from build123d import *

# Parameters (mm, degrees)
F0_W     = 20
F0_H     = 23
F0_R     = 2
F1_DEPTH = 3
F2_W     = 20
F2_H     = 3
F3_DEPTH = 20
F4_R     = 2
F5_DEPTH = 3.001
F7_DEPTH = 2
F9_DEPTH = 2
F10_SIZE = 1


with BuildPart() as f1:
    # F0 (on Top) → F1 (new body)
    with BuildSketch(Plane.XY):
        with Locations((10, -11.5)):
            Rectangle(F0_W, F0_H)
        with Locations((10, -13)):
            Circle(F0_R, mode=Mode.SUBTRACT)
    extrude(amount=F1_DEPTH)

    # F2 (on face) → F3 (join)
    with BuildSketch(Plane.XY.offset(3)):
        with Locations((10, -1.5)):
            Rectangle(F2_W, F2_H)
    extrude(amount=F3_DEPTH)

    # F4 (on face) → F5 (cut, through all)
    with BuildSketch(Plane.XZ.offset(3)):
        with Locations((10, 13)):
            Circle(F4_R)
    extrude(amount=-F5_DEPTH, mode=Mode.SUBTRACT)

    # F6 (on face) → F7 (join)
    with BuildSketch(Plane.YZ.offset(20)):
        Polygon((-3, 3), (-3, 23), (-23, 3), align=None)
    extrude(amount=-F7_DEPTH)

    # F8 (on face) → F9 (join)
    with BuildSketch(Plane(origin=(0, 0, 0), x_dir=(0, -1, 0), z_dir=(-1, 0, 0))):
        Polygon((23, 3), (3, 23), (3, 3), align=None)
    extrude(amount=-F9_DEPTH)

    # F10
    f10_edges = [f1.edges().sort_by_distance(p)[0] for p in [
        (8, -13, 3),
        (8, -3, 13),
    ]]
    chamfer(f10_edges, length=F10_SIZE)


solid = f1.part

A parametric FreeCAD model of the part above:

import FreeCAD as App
import Part
import Sketcher

V = App.Vector


def edges_at(feature, points):
    """Names of the edges that pass closest to the given points."""
    edges = feature.Shape.Edges
    near = lambda p: min(range(len(edges)), key=lambda i: edges[i].distToShape(Part.Vertex(*p))[0])
    return sorted({f"Edge{near(p) + 1}" for p in points})

doc = App.newDocument("Part")
body = doc.addObject("PartDesign::Body", "Body")

sketch1 = doc.addObject("Sketcher::SketchObject", "Sketch")
body.addObject(sketch1)
sketch1.AttachmentSupport = (doc.XY_Plane, [""])
sketch1.MapMode = "FlatFace"
sketch1.addGeometry([
    Part.LineSegment(V(0, 0, 0), V(0, -23, 0)),
    Part.LineSegment(V(0, -23, 0), V(20, -23, 0)),
    Part.LineSegment(V(20, -23, 0), V(20, 0, 0)),
    Part.LineSegment(V(20, 0, 0), V(0, 0, 0)),
    Part.Circle(V(10, -13, 0), V(0, 0, 1), 2),
], False)
sketch1.addConstraint([
    Sketcher.Constraint("Coincident", 0, 2, 1, 1),
    Sketcher.Constraint("Coincident", 1, 2, 2, 1),
    Sketcher.Constraint("Coincident", 2, 2, 3, 1),
    Sketcher.Constraint("Coincident", 3, 2, 0, 1),
    Sketcher.Constraint("Vertical", 0),
    Sketcher.Constraint("Horizontal", 1),
    Sketcher.Constraint("Vertical", 2),
    Sketcher.Constraint("Horizontal", 3),
    Sketcher.Constraint("Coincident", 3, 2, -1, 1),
    Sketcher.Constraint("Diameter", 4, 4.0),
    Sketcher.Constraint("DistanceX", 1, 1, 1, 2, 20.0),
    Sketcher.Constraint("DistanceY", 0, 2, 0, 1, 23.0),
    Sketcher.Constraint("DistanceX", -1, 1, 4, 3, 10.0),
    Sketcher.Constraint("DistanceY", 4, 3, -1, 1, 13.0),
])
pad1 = doc.addObject("PartDesign::Pad", "Pad")
body.addObject(pad1)
pad1.Profile = sketch1
pad1.Length = 3

sketch2 = doc.addObject("Sketcher::SketchObject", "Sketch001")
body.addObject(sketch2)
sketch2.AttachmentSupport = (doc.XY_Plane, [""])
sketch2.MapMode = "FlatFace"
sketch2.AttachmentOffset = App.Placement(V(0, 0, 3), App.Rotation())
sketch2.addGeometry([
    Part.LineSegment(V(0, 0, 0), V(0, -3, 0)),
    Part.LineSegment(V(0, -3, 0), V(20, -3, 0)),
    Part.LineSegment(V(20, -3, 0), V(20, 0, 0)),
    Part.LineSegment(V(20, 0, 0), V(0, 0, 0)),
], False)
sketch2.addConstraint([
    Sketcher.Constraint("Coincident", 0, 2, 1, 1),
    Sketcher.Constraint("Coincident", 1, 2, 2, 1),
    Sketcher.Constraint("Coincident", 2, 2, 3, 1),
    Sketcher.Constraint("Coincident", 3, 2, 0, 1),
    Sketcher.Constraint("Vertical", 0),
    Sketcher.Constraint("Horizontal", 1),
    Sketcher.Constraint("Vertical", 2),
    Sketcher.Constraint("Horizontal", 3),
    Sketcher.Constraint("Coincident", 3, 2, -1, 1),
    Sketcher.Constraint("DistanceX", 1, 1, 1, 2, 20.0),
    Sketcher.Constraint("DistanceY", 0, 2, 0, 1, 3.0),
])
pad2 = doc.addObject("PartDesign::Pad", "Pad001")
body.addObject(pad2)
pad2.Profile = sketch2
pad2.Length = 20

sketch3 = doc.addObject("Sketcher::SketchObject", "Sketch002")
body.addObject(sketch3)
sketch3.AttachmentSupport = (doc.XZ_Plane, [""])
sketch3.MapMode = "FlatFace"
sketch3.AttachmentOffset = App.Placement(V(0, 0, 3), App.Rotation())
sketch3.addGeometry(Part.Circle(V(10, 13, 0), V(0, 0, 1), 2), False)
sketch3.addConstraint([
    Sketcher.Constraint("Diameter", 0, 4.0),
    Sketcher.Constraint("DistanceX", -1, 1, 0, 3, 10.0),
    Sketcher.Constraint("DistanceY", -1, 1, 0, 3, 13.0),
])
pocket1 = doc.addObject("PartDesign::Pocket", "Pocket")
body.addObject(pocket1)
pocket1.Profile = sketch3
pocket1.Type = "ThroughAll"

sketch4 = doc.addObject("Sketcher::SketchObject", "Sketch003")
body.addObject(sketch4)
sketch4.AttachmentSupport = (doc.YZ_Plane, [""])
sketch4.MapMode = "FlatFace"
sketch4.AttachmentOffset = App.Placement(V(0, 0, 20), App.Rotation())
sketch4.addGeometry([
    Part.LineSegment(V(-3, 3, 0), V(-3, 23, 0)),
    Part.LineSegment(V(-3, 23, 0), V(-23, 3, 0)),
    Part.LineSegment(V(-23, 3, 0), V(-3, 3, 0)),
], False)
sketch4.addConstraint([
    Sketcher.Constraint("Coincident", 0, 2, 1, 1),
    Sketcher.Constraint("Coincident", 1, 2, 2, 1),
    Sketcher.Constraint("Coincident", 2, 2, 0, 1),
    Sketcher.Constraint("Vertical", 0),
    Sketcher.Constraint("Horizontal", 2),
    Sketcher.Constraint("Equal", 2, 0),
    Sketcher.Constraint("DistanceX", 2, 1, 2, 2, 20.0),
    Sketcher.Constraint("DistanceX", 0, 2, -1, 1, 3.0),
    Sketcher.Constraint("DistanceY", -1, 1, 0, 2, 23.0),
])
pad3 = doc.addObject("PartDesign::Pad", "Pad002")
body.addObject(pad3)
pad3.Profile = sketch4
pad3.Length = 2
pad3.Reversed = True

sketch5 = doc.addObject("Sketcher::SketchObject", "Sketch004")
body.addObject(sketch5)
sketch5.AttachmentSupport = (doc.YZ_Plane, [""])
sketch5.MapMode = "FlatFace"
sketch5.addGeometry([
    Part.LineSegment(V(-23, 3, 0), V(-3, 23, 0)),
    Part.LineSegment(V(-3, 23, 0), V(-3, 3, 0)),
    Part.LineSegment(V(-3, 3, 0), V(-23, 3, 0)),
], False)
sketch5.addConstraint([
    Sketcher.Constraint("Coincident", 0, 2, 1, 1),
    Sketcher.Constraint("Coincident", 1, 2, 2, 1),
    Sketcher.Constraint("Coincident", 2, 2, 0, 1),
    Sketcher.Constraint("Vertical", 1),
    Sketcher.Constraint("Horizontal", 2),
    Sketcher.Constraint("Equal", 2, 1),
    Sketcher.Constraint("DistanceX", 2, 2, 2, 1, 20.0),
    Sketcher.Constraint("DistanceX", 0, 2, -1, 1, 3.0),
    Sketcher.Constraint("DistanceY", -1, 1, 0, 2, 23.0),
])
pad4 = doc.addObject("PartDesign::Pad", "Pad003")
body.addObject(pad4)
pad4.Profile = sketch5
pad4.Length = 2
doc.recompute()

chamfer = doc.addObject("PartDesign::Chamfer", "Chamfer")
body.addObject(chamfer)
chamfer.Base = (pad4, edges_at(pad4, [(8, -13, 3), (8, -3, 13)]))
chamfer.Size = 1

doc.recompute()
